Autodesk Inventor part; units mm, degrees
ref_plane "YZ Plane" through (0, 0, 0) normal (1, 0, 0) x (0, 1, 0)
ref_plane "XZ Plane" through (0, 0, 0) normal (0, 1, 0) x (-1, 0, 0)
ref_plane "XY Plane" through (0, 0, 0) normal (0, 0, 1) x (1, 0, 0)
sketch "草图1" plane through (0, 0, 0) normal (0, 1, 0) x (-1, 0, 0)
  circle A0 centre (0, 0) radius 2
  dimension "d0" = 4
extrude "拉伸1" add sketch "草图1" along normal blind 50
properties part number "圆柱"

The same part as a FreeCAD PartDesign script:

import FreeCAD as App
import Part
import Sketcher
Q = App.Units.Quantity

doc = App.newDocument("Part")
params = doc.addObject("Spreadsheet::Sheet", "Params")
for row, (alias, value) in enumerate([
    ("sketch1_diameter", "4 mm"),
    ("pad1_length", "50 mm"),
], start=1):
    params.set(f"A{row}", alias)
    params.set(f"B{row}", "=" + value)
    params.setAlias(f"B{row}", alias)

body = doc.addObject("PartDesign::Body", "Body")

# Sketch on XZ plane
sketch1 = doc.addObject("Sketcher::SketchObject", "Sketch")
body.addObject(sketch1)
sketch1.AttachmentSupport = (doc.XZ_Plane, [""])
sketch1.MapMode = "FlatFace"
sketch1.addGeometry(Part.Circle(App.Vector(0, 0, 0), App.Vector(0, 0, 1), 2), False)
sketch1.addConstraint(Sketcher.Constraint("Coincident", 0, 3, -1, 1))
sketch1.addConstraint(Sketcher.Constraint("Diameter", 0, Q("4 mm")))
sketch1.setExpression("Constraints[1]", "Params.sketch1_diameter")
pad1 = doc.addObject("PartDesign::Pad", "Pad")
body.addObject(pad1)
pad1.Profile = sketch1
pad1.setExpression("Length", "Params.pad1_length")
pad1.Reversed = True

doc.recompute()
